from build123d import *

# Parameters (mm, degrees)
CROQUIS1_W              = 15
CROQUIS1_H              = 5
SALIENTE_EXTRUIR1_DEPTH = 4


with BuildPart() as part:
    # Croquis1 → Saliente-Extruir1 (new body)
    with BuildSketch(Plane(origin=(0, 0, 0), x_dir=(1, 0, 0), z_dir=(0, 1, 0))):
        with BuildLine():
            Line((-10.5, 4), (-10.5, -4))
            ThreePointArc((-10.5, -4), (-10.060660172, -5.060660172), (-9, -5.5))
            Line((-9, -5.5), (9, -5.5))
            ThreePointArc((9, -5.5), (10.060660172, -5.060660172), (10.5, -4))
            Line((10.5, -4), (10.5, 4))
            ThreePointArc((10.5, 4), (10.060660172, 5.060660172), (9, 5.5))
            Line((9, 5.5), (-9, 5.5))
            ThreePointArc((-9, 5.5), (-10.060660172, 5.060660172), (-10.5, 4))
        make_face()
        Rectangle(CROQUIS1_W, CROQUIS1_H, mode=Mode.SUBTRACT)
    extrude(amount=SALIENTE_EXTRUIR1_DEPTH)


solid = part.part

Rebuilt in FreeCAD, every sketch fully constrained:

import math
import FreeCAD as App
import Part
import Sketcher
from FreeCAD import Vector

doc = App.newDocument("Part")
body = doc.addObject("PartDesign::Body", "Body")

# Sketch on XZ plane
sketch1 = body.newObject("Sketcher::SketchObject", "Sketch")
sketch1.AttachmentSupport = (doc.getObject("XZ_Plane"), [""])
sketch1.MapMode = "FlatFace"
sketch1.addGeometry(Part.LineSegment(Vector(-10.5, -4, 0), Vector(-10.5, 4, 0)), False)
sketch1.addGeometry(Part.ArcOfCircle(Part.Circle(Vector(-9, 4, 0), Vector(0, 0, 1), 1.5), math.radians(90), math.radians(180)), False)
sketch1.addGeometry(Part.LineSegment(Vector(-9, 5.5, 0), Vector(9, 5.5, 0)), False)
sketch1.addGeometry(Part.ArcOfCircle(Part.Circle(Vector(9, 4, 0), Vector(0, 0, 1), 1.5), math.radians(0), math.radians(90)), False)
sketch1.addGeometry(Part.LineSegment(Vector(10.5, 4, 0), Vector(10.5, -4, 0)), False)
sketch1.addGeometry(Part.ArcOfCircle(Part.Circle(Vector(9, -4, 0), Vector(0, 0, 1), 1.5), math.radians(-90), math.radians(0)), False)
sketch1.addGeometry(Part.LineSegment(Vector(9, -5.5, 0), Vector(-9, -5.5, 0)), False)
sketch1.addGeometry(Part.ArcOfCircle(Part.Circle(Vector(-9, -4, 0), Vector(0, 0, 1), 1.5), math.radians(180), math.radians(270)), False)
sketch1.addGeometry(Part.LineSegment(Vector(7.5, 2.5, 0), Vector(-7.5, 2.5, 0)), False)
sketch1.addGeometry(Part.LineSegment(Vector(-7.5, 2.5, 0), Vector(-7.5, -2.5, 0)), False)
sketch1.addGeometry(Part.LineSegment(Vector(-7.5, -2.5, 0), Vector(7.5, -2.5, 0)), False)
sketch1.addGeometry(Part.LineSegment(Vector(7.5, -2.5, 0), Vector(7.5, 2.5, 0)), False)
sketch1.addConstraint(Sketcher.Constraint("Tangent", 0, 2, 1, 2))
sketch1.addConstraint(Sketcher.Constraint("Tangent", 1, 1, 2, 1))
sketch1.addConstraint(Sketcher.Constraint("Tangent", 2, 2, 3, 2))
sketch1.addConstraint(Sketcher.Constraint("Tangent", 3, 1, 4, 1))
sketch1.addConstraint(Sketcher.Constraint("Tangent", 4, 2, 5, 2))
sketch1.addConstraint(Sketcher.Constraint("Tangent", 5, 1, 6, 1))
sketch1.addConstraint(Sketcher.Constraint("Tangent", 6, 2, 7, 2))
sketch1.addConstraint(Sketcher.Constraint("Tangent", 7, 1, 0, 1))
sketch1.addConstraint(Sketcher.Constraint("Coincident", 8, 2, 9, 1))
sketch1.addConstraint(Sketcher.Constraint("Coincident", 9, 2, 10, 1))
sketch1.addConstraint(Sketcher.Constraint("Coincident", 10, 2, 11, 1))
sketch1.addConstraint(Sketcher.Constraint("Coincident", 11, 2, 8, 1))
sketch1.addConstraint(Sketcher.Constraint("Vertical", 0))
sketch1.addConstraint(Sketcher.Constraint("Horizontal", 2))
sketch1.addConstraint(Sketcher.Constraint("Vertical", 4))
sketch1.addConstraint(Sketcher.Constraint("Horizontal", 6))
sketch1.addConstraint(Sketcher.Constraint("Horizontal", 8))
sketch1.addConstraint(Sketcher.Constraint("Vertical", 9))
sketch1.addConstraint(Sketcher.Constraint("Horizontal", 10))
sketch1.addConstraint(Sketcher.Constraint("Vertical", 11))
sketch1.addConstraint(Sketcher.Constraint("Equal", 1, 3))
sketch1.addConstraint(Sketcher.Constraint("Equal", 3, 5))
sketch1.addConstraint(Sketcher.Constraint("Equal", 5, 7))
sketch1.addConstraint(Sketcher.Constraint("Symmetric", 1, 3, 5, 3, -1, 1))
sketch1.addConstraint(Sketcher.Constraint("Symmetric", 8, 2, 10, 2, -1, 1))
sketch1.addConstraint(Sketcher.Constraint("Radius", 1, 1.5))
sketch1.addConstraint(Sketcher.Constraint("DistanceX", 2, 1, 2, 2, 18.0))
sketch1.addConstraint(Sketcher.Constraint("DistanceX", 8, 2, 8, 1, 15.0))
sketch1.addConstraint(Sketcher.Constraint("DistanceY", 0, 1, 0, 2, 8.0))
sketch1.addConstraint(Sketcher.Constraint("DistanceY", 9, 2, 9, 1, 5.0))
pad1 = body.newObject("PartDesign::Pad", "Pad")
pad1.Profile = sketch1
pad1.Length = 4
pad1.Reversed = True

doc.recompute()
